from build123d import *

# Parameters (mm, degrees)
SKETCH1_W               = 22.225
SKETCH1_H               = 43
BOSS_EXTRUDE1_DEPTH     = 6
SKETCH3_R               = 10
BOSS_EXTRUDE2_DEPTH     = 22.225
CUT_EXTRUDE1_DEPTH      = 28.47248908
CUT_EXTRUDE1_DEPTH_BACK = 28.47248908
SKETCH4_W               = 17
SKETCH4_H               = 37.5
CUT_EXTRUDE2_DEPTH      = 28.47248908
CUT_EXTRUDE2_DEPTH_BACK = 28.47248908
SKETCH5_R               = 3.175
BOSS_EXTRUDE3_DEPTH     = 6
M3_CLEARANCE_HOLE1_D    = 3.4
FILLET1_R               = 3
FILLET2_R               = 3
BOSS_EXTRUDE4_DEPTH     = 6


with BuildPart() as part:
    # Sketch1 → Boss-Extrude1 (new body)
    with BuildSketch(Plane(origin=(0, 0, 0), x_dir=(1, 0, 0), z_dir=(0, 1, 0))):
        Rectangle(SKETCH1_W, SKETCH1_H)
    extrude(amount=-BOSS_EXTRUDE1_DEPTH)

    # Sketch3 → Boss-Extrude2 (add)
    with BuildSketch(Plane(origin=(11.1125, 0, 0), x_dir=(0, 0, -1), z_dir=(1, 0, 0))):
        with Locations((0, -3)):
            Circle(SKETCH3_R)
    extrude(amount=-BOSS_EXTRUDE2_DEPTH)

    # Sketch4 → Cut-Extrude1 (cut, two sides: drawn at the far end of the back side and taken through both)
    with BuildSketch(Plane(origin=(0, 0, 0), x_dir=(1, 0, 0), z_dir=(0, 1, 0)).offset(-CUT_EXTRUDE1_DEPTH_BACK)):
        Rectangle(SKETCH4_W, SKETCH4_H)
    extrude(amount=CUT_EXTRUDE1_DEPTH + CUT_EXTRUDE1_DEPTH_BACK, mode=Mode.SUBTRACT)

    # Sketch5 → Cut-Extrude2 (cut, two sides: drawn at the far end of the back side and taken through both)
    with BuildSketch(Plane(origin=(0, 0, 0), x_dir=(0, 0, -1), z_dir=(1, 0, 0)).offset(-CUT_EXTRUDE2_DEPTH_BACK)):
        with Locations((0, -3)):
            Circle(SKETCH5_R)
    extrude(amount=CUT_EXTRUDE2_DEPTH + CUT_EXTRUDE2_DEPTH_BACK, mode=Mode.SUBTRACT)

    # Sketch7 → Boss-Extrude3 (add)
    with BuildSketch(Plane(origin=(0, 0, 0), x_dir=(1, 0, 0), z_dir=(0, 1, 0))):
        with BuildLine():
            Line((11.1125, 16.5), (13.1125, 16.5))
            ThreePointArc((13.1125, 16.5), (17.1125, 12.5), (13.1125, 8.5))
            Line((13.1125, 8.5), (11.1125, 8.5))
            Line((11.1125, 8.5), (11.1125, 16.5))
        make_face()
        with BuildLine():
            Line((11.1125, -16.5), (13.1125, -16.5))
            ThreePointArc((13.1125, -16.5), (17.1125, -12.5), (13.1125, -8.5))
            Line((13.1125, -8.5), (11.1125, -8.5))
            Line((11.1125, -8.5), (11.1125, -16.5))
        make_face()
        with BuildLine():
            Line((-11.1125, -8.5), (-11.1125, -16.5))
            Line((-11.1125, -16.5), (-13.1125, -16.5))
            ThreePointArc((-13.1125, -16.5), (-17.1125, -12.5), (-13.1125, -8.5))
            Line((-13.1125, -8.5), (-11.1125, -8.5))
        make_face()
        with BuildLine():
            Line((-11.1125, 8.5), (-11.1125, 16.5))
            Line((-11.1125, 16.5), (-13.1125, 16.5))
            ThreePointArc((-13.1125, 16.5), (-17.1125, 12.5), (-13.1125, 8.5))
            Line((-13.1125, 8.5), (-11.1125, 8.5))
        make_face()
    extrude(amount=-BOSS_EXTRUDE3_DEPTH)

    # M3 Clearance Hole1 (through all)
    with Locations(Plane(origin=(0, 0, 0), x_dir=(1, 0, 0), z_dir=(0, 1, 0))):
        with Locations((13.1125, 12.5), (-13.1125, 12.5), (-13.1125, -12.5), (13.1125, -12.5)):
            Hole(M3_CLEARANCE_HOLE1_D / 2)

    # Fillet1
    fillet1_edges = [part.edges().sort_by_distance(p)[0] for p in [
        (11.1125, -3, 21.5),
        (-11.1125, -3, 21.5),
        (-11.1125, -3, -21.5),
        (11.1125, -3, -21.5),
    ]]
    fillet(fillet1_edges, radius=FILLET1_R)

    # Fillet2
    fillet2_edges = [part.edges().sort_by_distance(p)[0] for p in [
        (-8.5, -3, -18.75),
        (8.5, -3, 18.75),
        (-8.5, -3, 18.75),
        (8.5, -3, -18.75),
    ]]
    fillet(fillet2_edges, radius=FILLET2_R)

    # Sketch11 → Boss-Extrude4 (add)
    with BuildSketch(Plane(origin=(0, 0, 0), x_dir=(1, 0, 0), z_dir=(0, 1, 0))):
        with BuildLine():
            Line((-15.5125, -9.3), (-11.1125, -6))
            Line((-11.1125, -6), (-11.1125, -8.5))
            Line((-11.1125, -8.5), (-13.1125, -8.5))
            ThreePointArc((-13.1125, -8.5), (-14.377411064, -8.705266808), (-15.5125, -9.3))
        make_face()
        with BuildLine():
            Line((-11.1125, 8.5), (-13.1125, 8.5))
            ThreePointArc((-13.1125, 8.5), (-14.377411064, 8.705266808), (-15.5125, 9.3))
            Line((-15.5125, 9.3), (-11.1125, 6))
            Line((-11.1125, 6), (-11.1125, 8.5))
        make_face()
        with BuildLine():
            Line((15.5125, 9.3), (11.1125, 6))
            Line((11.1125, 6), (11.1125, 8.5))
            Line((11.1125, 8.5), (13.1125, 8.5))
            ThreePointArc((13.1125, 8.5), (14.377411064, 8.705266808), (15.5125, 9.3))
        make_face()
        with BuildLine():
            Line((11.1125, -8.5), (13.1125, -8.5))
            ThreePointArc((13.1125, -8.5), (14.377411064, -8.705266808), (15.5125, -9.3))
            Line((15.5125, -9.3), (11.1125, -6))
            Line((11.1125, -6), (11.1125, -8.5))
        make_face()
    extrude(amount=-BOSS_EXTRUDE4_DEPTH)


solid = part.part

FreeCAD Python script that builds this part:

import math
import FreeCAD as App
import Part
import Sketcher

V = App.Vector


def edges_at(feature, points):
    """Names of the edges that pass closest to the given points."""
    edges = feature.Shape.Edges
    near = lambda p: min(range(len(edges)), key=lambda i: edges[i].distToShape(Part.Vertex(*p))[0])
    return sorted({f"Edge{near(p) + 1}" for p in points})


def add_polygon(sketch, points):
    """Adds a closed chain of lines whose ends are joined by coincident constraints."""
    first, n = sketch.GeometryCount, len(points)
    for a, b in zip(points, points[1:] + points[:1]):
        sketch.addGeometry(Part.LineSegment(App.Vector(*a, 0), App.Vector(*b, 0)), False)
    for i in range(n):
        sketch.addConstraint(Sketcher.Constraint("Coincident", first + i, 2, first + (i + 1) % n, 1))

doc = App.newDocument("Part")
params = doc.addObject("Spreadsheet::Sheet", "Params")
for row, (alias, value) in enumerate([
    ("sketch1_height", "43 mm"),
    ("pad1_length", "6 mm"),
    ("sketch2_diameter", "20 mm"),
    ("pad2_length", "22.225 mm"),
    ("sketch3_width", "17 mm"),
    ("sketch3_height", "37.5 mm"),
    ("sketch4_diameter", "6.35 mm"),
    ("sketch5_radius", "4 mm"),
    ("sketch5_width", "2 mm"),
    ("pad3_length", "6 mm"),
    ("sketch6_diameter", "3.4 mm"),
    ("hole_diameter", "3.4 mm"),
    ("fillet_radius", "3 mm"),
    ("fillet2_radius", "3 mm"),
    ("sketch7_radius", "4 mm"),
    ("sketch7_width", "2 mm"),
    ("sketch7_height", "2.5 mm"),
    ("pad4_length", "6 mm"),
], start=1):
    params.set(f"A{row}", alias)
    params.set(f"B{row}", "=" + value)
    params.setAlias(f"B{row}", alias)

body = doc.addObject("PartDesign::Body", "Body")

sketch1 = body.newObject("Sketcher::SketchObject", "Sketch")
sketch1.AttachmentSupport = (doc.getObject("XZ_Plane"), [""])
sketch1.MapMode = "FlatFace"
add_polygon(sketch1, [(-11, -22), (-11, 22), (11, 22), (11, -22)])
sketch1.addConstraint(Sketcher.Constraint("Vertical", 0))
sketch1.addConstraint(Sketcher.Constraint("Horizontal", 1))
sketch1.addConstraint(Sketcher.Constraint("Vertical", 2))
sketch1.addConstraint(Sketcher.Constraint("Horizontal", 3))
sketch1.addConstraint(Sketcher.Constraint("Symmetric", 0, 2, 2, 2, -1, 1))
sketch1.addConstraint(Sketcher.Constraint("DistanceY", 0, 1, 0, 2, 43.0))
sketch1.addConstraint(Sketcher.Constraint("DistanceX", 1, 1, 1, 2, 22.225))
sketch1.setExpression("Constraints[9]", "Params.sketch1_height")
pad1 = body.newObject("PartDesign::Pad", "Pad")
pad1.Profile = sketch1
pad1.setExpression("Length", "Params.pad1_length")

sketch2 = body.newObject("Sketcher::SketchObject", "Sketch001")
sketch2.AttachmentSupport = (doc.getObject("YZ_Plane"), [""])
sketch2.MapMode = "FlatFace"
sketch2.AttachmentOffset = App.Placement(V(0, 0, 11.1125), App.Rotation())
sketch2.addGeometry(Part.Circle(V(-3, 0, 0), V(0, 0, 1), 10), False)
sketch2.addConstraint(Sketcher.Constraint("PointOnObject", 0, 3, -1))
sketch2.addConstraint(Sketcher.Constraint("Diameter", 0, 20.0))
sketch2.addConstraint(Sketcher.Constraint("DistanceX", 0, 3, -1, 1, 3.0))
sketch2.setExpression("Constraints[1]", "Params.sketch2_diameter")
pad2 = body.newObject("PartDesign::Pad", "Pad001")
pad2.Profile = sketch2
pad2.setExpression("Length", "Params.pad2_length")
pad2.Reversed = True

sketch3 = body.newObject("Sketcher::SketchObject", "Sketch002")
sketch3.AttachmentSupport = (doc.getObject("XZ_Plane"), [""])
sketch3.MapMode = "FlatFace"
add_polygon(sketch3, [(-8, -19), (-8, 19), (8, 19), (8, -19)])
sketch3.addConstraint(Sketcher.Constraint("Vertical", 0))
sketch3.addConstraint(Sketcher.Constraint("Horizontal", 1))
sketch3.addConstraint(Sketcher.Constraint("Vertical", 2))
sketch3.addConstraint(Sketcher.Constraint("Horizontal", 3))
sketch3.addConstraint(Sketcher.Constraint("Symmetric", 0, 2, 2, 2, -1, 1))
sketch3.addConstraint(Sketcher.Constraint("DistanceX", 1, 1, 1, 2, 17.0))
sketch3.addConstraint(Sketcher.Constraint("DistanceY", 0, 1, 0, 2, 37.5))
sketch3.setExpression("Constraints[9]", "Params.sketch3_width")
sketch3.setExpression("Constraints[10]", "Params.sketch3_height")
pocket1 = body.newObject("PartDesign::Pocket", "Pocket")
pocket1.Profile = sketch3
pocket1.Type = "ThroughAll"
pocket1.Midplane = True

sketch4 = body.newObject("Sketcher::SketchObject", "Sketch003")
sketch4.AttachmentSupport = (doc.getObject("YZ_Plane"), [""])
sketch4.MapMode = "FlatFace"
sketch4.addGeometry(Part.Circle(V(-3, 0, 0), V(0, 0, 1), 3.2), False)
sketch4.addConstraint(Sketcher.Constraint("PointOnObject", 0, 3, -1))
sketch4.addConstraint(Sketcher.Constraint("Diameter", 0, 6.35))
sketch4.addConstraint(Sketcher.Constraint("DistanceX", 0, 3, -1, 1, 3.0))
sketch4.setExpression("Constraints[1]", "Params.sketch4_diameter")
pocket2 = body.newObject("PartDesign::Pocket", "Pocket001")
pocket2.Profile = sketch4
pocket2.Type = "ThroughAll"
pocket2.Midplane = True

sketch5 = body.newObject("Sketcher::SketchObject", "Sketch004")
sketch5.AttachmentSupport = (doc.getObject("XZ_Plane"), [""])
sketch5.MapMode = "FlatFace"
sketch5.addGeometry(Part.LineSegment(V(13.1, -16.5, 0), V(11.1, -16.5, 0)), False)
sketch5.addGeometry(Part.LineSegment(V(11.1, -16.5, 0), V(11.1, -8.5, 0)), False)
sketch5.addGeometry(Part.LineSegment(V(11.1, -8.5, 0), V(13.1, -8.5, 0)), False)
sketch5.addGeometry(Part.ArcOfCircle(Part.Circle(V(13.1, -12.5, 0), V(0, 0, 1), 4), math.radians(-90), math.radians(90)), False)
sketch5.addGeometry(Part.LineSegment(V(11.1, 16.5, 0), V(13.1, 16.5, 0)), False)
sketch5.addGeometry(Part.ArcOfCircle(Part.Circle(V(13.1, 12.5, 0), V(0, 0, 1), 4), math.radians(-90), math.radians(90)), False)
sketch5.addGeometry(Part.LineSegment(V(13.1, 8.5, 0), V(11.1, 8.5, 0)), False)
sketch5.addGeometry(Part.LineSegment(V(11.1, 8.5, 0), V(11.1, 16.5, 0)), False)
sketch5.addGeometry(Part.LineSegment(V(-11.1, 16.5, 0), V(-11.1, 8.5, 0)), False)
sketch5.addGeometry(Part.LineSegment(V(-11.1, 8.5, 0), V(-13.1, 8.5, 0)), False)
sketch5.addGeometry(Part.ArcOfCircle(Part.Circle(V(-13.1, 12.5, 0), V(0, 0, 1), 4), math.radians(90), math.radians(270)), False)
sketch5.addGeometry(Part.LineSegment(V(-13.1, 16.5, 0), V(-11.1, 16.5, 0)), False)
sketch5.addGeometry(Part.LineSegment(V(-11.1, -8.5, 0), V(-11.1, -16.5, 0)), False)
sketch5.addGeometry(Part.LineSegment(V(-11.1, -16.5, 0), V(-13.1, -16.5, 0)), False)
sketch5.addGeometry(Part.ArcOfCircle(Part.Circle(V(-13.1, -12.5, 0), V(0, 0, 1), 4), math.radians(90), math.radians(270)), False)
sketch5.addGeometry(Part.LineSegment(V(-13.1, -8.5, 0), V(-11.1, -8.5, 0)), False)
sketch5.addConstraint(Sketcher.Constraint("Coincident", 0, 2, 1, 1))
sketch5.addConstraint(Sketcher.Constraint("Coincident", 1, 2, 2, 1))
sketch5.addConstraint(Sketcher.Constraint("Tangent", 2, 2, 3, 2))
sketch5.addConstraint(Sketcher.Constraint("Tangent", 3, 1, 0, 1))
sketch5.addConstraint(Sketcher.Constraint("Tangent", 4, 2, 5, 2))
sketch5.addConstraint(Sketcher.Constraint("Tangent", 5, 1, 6, 1))
sketch5.addConstraint(Sketcher.Constraint("Coincident", 6, 2, 7, 1))
sketch5.addConstraint(Sketcher.Constraint("Coincident", 7, 2, 4, 1))
sketch5.addConstraint(Sketcher.Constraint("Coincident", 8, 2, 9, 1))
sketch5.addConstraint(Sketcher.Constraint("Tangent", 9, 2, 10, 2))
sketch5.addConstraint(Sketcher.Constraint("Tangent", 10, 1, 11, 1))
sketch5.addConstraint(Sketcher.Constraint("Coincident", 11, 2, 8, 1))
sketch5.addConstraint(Sketcher.Constraint("Coincident", 12, 2, 13, 1))
sketch5.addConstraint(Sketcher.Constraint("Tangent", 13, 2, 14, 2))
sketch5.addConstraint(Sketcher.Constraint("Tangent", 14, 1, 15, 1))
sketch5.addConstraint(Sketcher.Constraint("Coincident", 15, 2, 12, 1))
sketch5.addConstraint(Sketcher.Constraint("Horizontal", 0))
sketch5.addConstraint(Sketcher.Constraint("Vertical", 1))
sketch5.addConstraint(Sketcher.Constraint("Horizontal", 2))
sketch5.addConstraint(Sketcher.Constraint("Horizontal", 4))
sketch5.addConstraint(Sketcher.Constraint("Horizontal", 6))
sketch5.addConstraint(Sketcher.Constraint("Vertical", 7))
sketch5.addConstraint(Sketcher.Constraint("Vertical", 8))
sketch5.addConstraint(Sketcher.Constraint("Horizontal", 9))
sketch5.addConstraint(Sketcher.Constraint("Horizontal", 11))
sketch5.addConstraint(Sketcher.Constraint("Vertical", 12))
sketch5.addConstraint(Sketcher.Constraint("Horizontal", 13))
sketch5.addConstraint(Sketcher.Constraint("Horizontal", 15))
sketch5.addConstraint(Sketcher.Constraint("Equal", 3, 5))
sketch5.addConstraint(Sketcher.Constraint("Equal", 5, 10))
sketch5.addConstraint(Sketcher.Constraint("Equal", 10, 14))
sketch5.addConstraint(Sketcher.Constraint("Symmetric", 3, 3, 10, 3, -1, 1))
sketch5.addConstraint(Sketcher.Constraint("Symmetric", 5, 3, 14, 3, -1, 1))
sketch5.addConstraint(Sketcher.Constraint("Symmetric", 5, 3, 10, 3, -2))
sketch5.addConstraint(Sketcher.Constraint("Vertical", 1, 2, 6, 2))
sketch5.addConstraint(Sketcher.Constraint("Vertical", 11, 2, 12, 2))
sketch5.addConstraint(Sketcher.Constraint("Equal", 6, 9))
sketch5.addConstraint(Sketcher.Constraint("Radius", 3, 4.0))
sketch5.addConstraint(Sketcher.Constraint("DistanceX", 0, 2, 0, 1, 2.0))
sketch5.addConstraint(Sketcher.Constraint("DistanceY", 3, 3, 5, 3, 25.0))
sketch5.addConstraint(Sketcher.Constraint("DistanceX", 10, 3, 5, 3, 26.225))
sketch5.setExpression("Constraints[37]", "Params.sketch5_radius")
sketch5.setExpression("Constraints[38]", "Params.sketch5_width")
pad3 = body.newObject("PartDesign::Pad", "Pad002")
pad3.Profile = sketch5
pad3.setExpression("Length", "Params.pad3_length")

sketch6 = body.newObject("Sketcher::SketchObject", "Sketch005")
sketch6.AttachmentSupport = (doc.getObject("XZ_Plane"), [""])
sketch6.MapMode = "FlatFace"
sketch6.addGeometry(Part.Circle(V(13.1, -12.5, 0), V(0, 0, 1), 1.7), False)
sketch6.addGeometry(Part.Circle(V(-13.1, -12.5, 0), V(0, 0, 1), 1.7), False)
sketch6.addGeometry(Part.Circle(V(-13.1, 12.5, 0), V(0, 0, 1), 1.7), False)
sketch6.addGeometry(Part.Circle(V(13.1, 12.5, 0), V(0, 0, 1), 1.7), False)
sketch6.addConstraint(Sketcher.Constraint("Equal", 0, 1))
sketch6.addConstraint(Sketcher.Constraint("Equal", 1, 2))
sketch6.addConstraint(Sketcher.Constraint("Equal", 2, 3))
sketch6.addConstraint(Sketcher.Constraint("Symmetric", 0, 3, 2, 3, -1, 1))
sketch6.addConstraint(Sketcher.Constraint("Symmetric", 1, 3, 3, 3, -1, 1))
sketch6.addConstraint(Sketcher.Constraint("Symmetric", 0, 3, 1, 3, -2))
sketch6.addConstraint(Sketcher.Constraint("Diameter", 0, 3.4))
sketch6.addConstraint(Sketcher.Constraint("DistanceY", 1, 3, 2, 3, 25.0))
sketch6.addConstraint(Sketcher.Constraint("DistanceX", 1, 3, 0, 3, 26.225))
sketch6.setExpression("Constraints[6]", "Params.sketch6_diameter")
doc.recompute()
hole = body.newObject("PartDesign::Hole", "Hole")
hole.Profile = sketch6
hole.ThreadType = "None"
hole.setExpression("Diameter", "Params.hole_diameter")
hole.DepthType = "ThroughAll"
hole.Reversed = True
doc.recompute()

fillet = body.newObject("PartDesign::Fillet", "Fillet")
fillet.Base = (hole, edges_at(hole, [
    (11.113, -3, 21.5),
    (-11.113, -3, 21.5),
    (-11.113, -3, -21.5),
    (11.113, -3, -21.5),
]))
fillet.setExpression("Radius", "Params.fillet_radius")
doc.recompute()

fillet2 = body.newObject("PartDesign::Fillet", "Fillet001")
fillet2.Base = (fillet, edges_at(fillet, [
    (-8.5, -3, -18.75),
    (8.5, -3, 18.75),
    (-8.5, -3, 18.75),
    (8.5, -3, -18.75),
]))
fillet2.setExpression("Radius", "Params.fillet2_radius")

sketch7 = body.newObject("Sketcher::SketchObject", "Sketch006")
sketch7.AttachmentSupport = (doc.getObject("XZ_Plane"), [""])
sketch7.MapMode = "FlatFace"
sketch7.addGeometry(Part.LineSegment(V(-11.1, 6, 0), V(-15.5, 9.3, 0)), False)
sketch7.addGeometry(Part.ArcOfCircle(Part.Circle(V(-13.1, 12.5, 0), V(0, 0, 1), 4), math.radians(-127), math.radians(-90)), False)
sketch7.addGeometry(Part.LineSegment(V(-13.1, 8.5, 0), V(-11.1, 8.5, 0)), False)
sketch7.addGeometry(Part.LineSegment(V(-11.1, 8.5, 0), V(-11.1, 6, 0)), False)
sketch7.addGeometry(Part.LineSegment(V(-11.1, -8.5, 0), V(-13.1, -8.5, 0)), False)
sketch7.addGeometry(Part.ArcOfCircle(Part.Circle(V(-13.1, -12.5, 0), V(0, 0, 1), 4), math.radians(90), math.radians(127)), False)
sketch7.addGeometry(Part.LineSegment(V(-15.5, -9.3, 0), V(-11.1, -6, 0)), False)
sketch7.addGeometry(Part.LineSegment(V(-11.1, -6, 0), V(-11.1, -8.5, 0)), False)
sketch7.addGeometry(Part.LineSegment(V(11.1, -6, 0), V(15.5, -9.3, 0)), False)
sketch7.addGeometry(Part.ArcOfCircle(Part.Circle(V(13.1, -12.5, 0), V(0, 0, 1), 4), math.radians(53), math.radians(90)), False)
sketch7.addGeometry(Part.LineSegment(V(13.1, -8.5, 0), V(11.1, -8.5, 0)), False)
sketch7.addGeometry(Part.LineSegment(V(11.1, -8.5, 0), V(11.1, -6, 0)), False)
sketch7.addGeometry(Part.LineSegment(V(11.1, 8.5, 0), V(13.1, 8.5, 0)), False)
sketch7.addGeometry(Part.ArcOfCircle(Part.Circle(V(13.1, 12.5, 0), V(0, 0, 1), 4), math.radians(-90), math.radians(-53)), False)
sketch7.addGeometry(Part.LineSegment(V(15.5, 9.3, 0), V(11.1, 6, 0)), False)
sketch7.addGeometry(Part.LineSegment(V(11.1, 6, 0), V(11.1, 8.5, 0)), False)
sketch7.addConstraint(Sketcher.Constraint("Tangent", 0, 2, 1, 1))
sketch7.addConstraint(Sketcher.Constraint("Tangent", 1, 2, 2, 1))
sketch7.addConstraint(Sketcher.Constraint("Coincident", 2, 2, 3, 1))
sketch7.addConstraint(Sketcher.Constraint("Coincident", 3, 2, 0, 1))
sketch7.addConstraint(Sketcher.Constraint("Tangent", 4, 2, 5, 1))
sketch7.addConstraint(Sketcher.Constraint("Tangent", 5, 2, 6, 1))
sketch7.addConstraint(Sketcher.Constraint("Coincident", 6, 2, 7, 1))
sketch7.addConstraint(Sketcher.Constraint("Coincident", 7, 2, 4, 1))
sketch7.addConstraint(Sketcher.Constraint("Tangent", 8, 2, 9, 1))
sketch7.addConstraint(Sketcher.Constraint("Tangent", 9, 2, 10, 1))
sketch7.addConstraint(Sketcher.Constraint("Coincident", 10, 2, 11, 1))
sketch7.addConstraint(Sketcher.Constraint("Coincident", 11, 2, 8, 1))
sketch7.addConstraint(Sketcher.Constraint("Tangent", 12, 2, 13, 1))
sketch7.addConstraint(Sketcher.Constraint("Tangent", 13, 2, 14, 1))
sketch7.addConstraint(Sketcher.Constraint("Coincident", 14, 2, 15, 1))
sketch7.addConstraint(Sketcher.Constraint("Coincident", 15, 2, 12, 1))
sketch7.addConstraint(Sketcher.Constraint("Horizontal", 2))
sketch7.addConstraint(Sketcher.Constraint("Vertical", 3))
sketch7.addConstraint(Sketcher.Constraint("Horizontal", 4))
sketch7.addConstraint(Sketcher.Constraint("Vertical", 7))
sketch7.addConstraint(Sketcher.Constraint("Horizontal", 10))
sketch7.addConstraint(Sketcher.Constraint("Vertical", 11))
sketch7.addConstraint(Sketcher.Constraint("Horizontal", 12))
sketch7.addConstraint(Sketcher.Constraint("Vertical", 15))
sketch7.addConstraint(Sketcher.Constraint("Equal", 1, 5))
sketch7.addConstraint(Sketcher.Constraint("Equal", 5, 9))
sketch7.addConstraint(Sketcher.Constraint("Equal", 9, 13))
sketch7.addConstraint(Sketcher.Constraint("Symmetric", 1, 3, 9, 3, -1, 1))
sketch7.addConstraint(Sketcher.Constraint("Symmetric", 5, 3, 13, 3, -1, 1))
sketch7.addConstraint(Sketcher.Constraint("Symmetric", 3, 2, 11, 2, -1, 1))
sketch7.addConstraint(Sketcher.Constraint("Symmetric", 6, 2, 14, 2, -1, 1))
sketch7.addConstraint(Sketcher.Constraint("Symmetric", 5, 3, 9, 3, -2))
sketch7.addConstraint(Sketcher.Constraint("Symmetric", 6, 2, 11, 2, -2))
sketch7.addConstraint(Sketcher.Constraint("Radius", 1, 4.0))
sketch7.addConstraint(Sketcher.Constraint("DistanceX", 2, 1, 2, 2, 2.0))
sketch7.addConstraint(Sketcher.Constraint("DistanceY", 3, 2, 3, 1, 2.5))
sketch7.addConstraint(Sketcher.Constraint("DistanceY", -1, 1, 3, 2, 6.0))
sketch7.addConstraint(Sketcher.Constraint("DistanceX", 5, 3, 9, 3, 26.225))
sketch7.setExpression("Constraints[33]", "Params.sketch7_radius")
sketch7.setExpression("Constraints[34]", "Params.sketch7_width")
sketch7.setExpression("Constraints[35]", "Params.sketch7_height")
pad4 = body.newObject("PartDesign::Pad", "Pad003")
pad4.Profile = sketch7
pad4.setExpression("Length", "Params.pad4_length")

doc.recompute()
